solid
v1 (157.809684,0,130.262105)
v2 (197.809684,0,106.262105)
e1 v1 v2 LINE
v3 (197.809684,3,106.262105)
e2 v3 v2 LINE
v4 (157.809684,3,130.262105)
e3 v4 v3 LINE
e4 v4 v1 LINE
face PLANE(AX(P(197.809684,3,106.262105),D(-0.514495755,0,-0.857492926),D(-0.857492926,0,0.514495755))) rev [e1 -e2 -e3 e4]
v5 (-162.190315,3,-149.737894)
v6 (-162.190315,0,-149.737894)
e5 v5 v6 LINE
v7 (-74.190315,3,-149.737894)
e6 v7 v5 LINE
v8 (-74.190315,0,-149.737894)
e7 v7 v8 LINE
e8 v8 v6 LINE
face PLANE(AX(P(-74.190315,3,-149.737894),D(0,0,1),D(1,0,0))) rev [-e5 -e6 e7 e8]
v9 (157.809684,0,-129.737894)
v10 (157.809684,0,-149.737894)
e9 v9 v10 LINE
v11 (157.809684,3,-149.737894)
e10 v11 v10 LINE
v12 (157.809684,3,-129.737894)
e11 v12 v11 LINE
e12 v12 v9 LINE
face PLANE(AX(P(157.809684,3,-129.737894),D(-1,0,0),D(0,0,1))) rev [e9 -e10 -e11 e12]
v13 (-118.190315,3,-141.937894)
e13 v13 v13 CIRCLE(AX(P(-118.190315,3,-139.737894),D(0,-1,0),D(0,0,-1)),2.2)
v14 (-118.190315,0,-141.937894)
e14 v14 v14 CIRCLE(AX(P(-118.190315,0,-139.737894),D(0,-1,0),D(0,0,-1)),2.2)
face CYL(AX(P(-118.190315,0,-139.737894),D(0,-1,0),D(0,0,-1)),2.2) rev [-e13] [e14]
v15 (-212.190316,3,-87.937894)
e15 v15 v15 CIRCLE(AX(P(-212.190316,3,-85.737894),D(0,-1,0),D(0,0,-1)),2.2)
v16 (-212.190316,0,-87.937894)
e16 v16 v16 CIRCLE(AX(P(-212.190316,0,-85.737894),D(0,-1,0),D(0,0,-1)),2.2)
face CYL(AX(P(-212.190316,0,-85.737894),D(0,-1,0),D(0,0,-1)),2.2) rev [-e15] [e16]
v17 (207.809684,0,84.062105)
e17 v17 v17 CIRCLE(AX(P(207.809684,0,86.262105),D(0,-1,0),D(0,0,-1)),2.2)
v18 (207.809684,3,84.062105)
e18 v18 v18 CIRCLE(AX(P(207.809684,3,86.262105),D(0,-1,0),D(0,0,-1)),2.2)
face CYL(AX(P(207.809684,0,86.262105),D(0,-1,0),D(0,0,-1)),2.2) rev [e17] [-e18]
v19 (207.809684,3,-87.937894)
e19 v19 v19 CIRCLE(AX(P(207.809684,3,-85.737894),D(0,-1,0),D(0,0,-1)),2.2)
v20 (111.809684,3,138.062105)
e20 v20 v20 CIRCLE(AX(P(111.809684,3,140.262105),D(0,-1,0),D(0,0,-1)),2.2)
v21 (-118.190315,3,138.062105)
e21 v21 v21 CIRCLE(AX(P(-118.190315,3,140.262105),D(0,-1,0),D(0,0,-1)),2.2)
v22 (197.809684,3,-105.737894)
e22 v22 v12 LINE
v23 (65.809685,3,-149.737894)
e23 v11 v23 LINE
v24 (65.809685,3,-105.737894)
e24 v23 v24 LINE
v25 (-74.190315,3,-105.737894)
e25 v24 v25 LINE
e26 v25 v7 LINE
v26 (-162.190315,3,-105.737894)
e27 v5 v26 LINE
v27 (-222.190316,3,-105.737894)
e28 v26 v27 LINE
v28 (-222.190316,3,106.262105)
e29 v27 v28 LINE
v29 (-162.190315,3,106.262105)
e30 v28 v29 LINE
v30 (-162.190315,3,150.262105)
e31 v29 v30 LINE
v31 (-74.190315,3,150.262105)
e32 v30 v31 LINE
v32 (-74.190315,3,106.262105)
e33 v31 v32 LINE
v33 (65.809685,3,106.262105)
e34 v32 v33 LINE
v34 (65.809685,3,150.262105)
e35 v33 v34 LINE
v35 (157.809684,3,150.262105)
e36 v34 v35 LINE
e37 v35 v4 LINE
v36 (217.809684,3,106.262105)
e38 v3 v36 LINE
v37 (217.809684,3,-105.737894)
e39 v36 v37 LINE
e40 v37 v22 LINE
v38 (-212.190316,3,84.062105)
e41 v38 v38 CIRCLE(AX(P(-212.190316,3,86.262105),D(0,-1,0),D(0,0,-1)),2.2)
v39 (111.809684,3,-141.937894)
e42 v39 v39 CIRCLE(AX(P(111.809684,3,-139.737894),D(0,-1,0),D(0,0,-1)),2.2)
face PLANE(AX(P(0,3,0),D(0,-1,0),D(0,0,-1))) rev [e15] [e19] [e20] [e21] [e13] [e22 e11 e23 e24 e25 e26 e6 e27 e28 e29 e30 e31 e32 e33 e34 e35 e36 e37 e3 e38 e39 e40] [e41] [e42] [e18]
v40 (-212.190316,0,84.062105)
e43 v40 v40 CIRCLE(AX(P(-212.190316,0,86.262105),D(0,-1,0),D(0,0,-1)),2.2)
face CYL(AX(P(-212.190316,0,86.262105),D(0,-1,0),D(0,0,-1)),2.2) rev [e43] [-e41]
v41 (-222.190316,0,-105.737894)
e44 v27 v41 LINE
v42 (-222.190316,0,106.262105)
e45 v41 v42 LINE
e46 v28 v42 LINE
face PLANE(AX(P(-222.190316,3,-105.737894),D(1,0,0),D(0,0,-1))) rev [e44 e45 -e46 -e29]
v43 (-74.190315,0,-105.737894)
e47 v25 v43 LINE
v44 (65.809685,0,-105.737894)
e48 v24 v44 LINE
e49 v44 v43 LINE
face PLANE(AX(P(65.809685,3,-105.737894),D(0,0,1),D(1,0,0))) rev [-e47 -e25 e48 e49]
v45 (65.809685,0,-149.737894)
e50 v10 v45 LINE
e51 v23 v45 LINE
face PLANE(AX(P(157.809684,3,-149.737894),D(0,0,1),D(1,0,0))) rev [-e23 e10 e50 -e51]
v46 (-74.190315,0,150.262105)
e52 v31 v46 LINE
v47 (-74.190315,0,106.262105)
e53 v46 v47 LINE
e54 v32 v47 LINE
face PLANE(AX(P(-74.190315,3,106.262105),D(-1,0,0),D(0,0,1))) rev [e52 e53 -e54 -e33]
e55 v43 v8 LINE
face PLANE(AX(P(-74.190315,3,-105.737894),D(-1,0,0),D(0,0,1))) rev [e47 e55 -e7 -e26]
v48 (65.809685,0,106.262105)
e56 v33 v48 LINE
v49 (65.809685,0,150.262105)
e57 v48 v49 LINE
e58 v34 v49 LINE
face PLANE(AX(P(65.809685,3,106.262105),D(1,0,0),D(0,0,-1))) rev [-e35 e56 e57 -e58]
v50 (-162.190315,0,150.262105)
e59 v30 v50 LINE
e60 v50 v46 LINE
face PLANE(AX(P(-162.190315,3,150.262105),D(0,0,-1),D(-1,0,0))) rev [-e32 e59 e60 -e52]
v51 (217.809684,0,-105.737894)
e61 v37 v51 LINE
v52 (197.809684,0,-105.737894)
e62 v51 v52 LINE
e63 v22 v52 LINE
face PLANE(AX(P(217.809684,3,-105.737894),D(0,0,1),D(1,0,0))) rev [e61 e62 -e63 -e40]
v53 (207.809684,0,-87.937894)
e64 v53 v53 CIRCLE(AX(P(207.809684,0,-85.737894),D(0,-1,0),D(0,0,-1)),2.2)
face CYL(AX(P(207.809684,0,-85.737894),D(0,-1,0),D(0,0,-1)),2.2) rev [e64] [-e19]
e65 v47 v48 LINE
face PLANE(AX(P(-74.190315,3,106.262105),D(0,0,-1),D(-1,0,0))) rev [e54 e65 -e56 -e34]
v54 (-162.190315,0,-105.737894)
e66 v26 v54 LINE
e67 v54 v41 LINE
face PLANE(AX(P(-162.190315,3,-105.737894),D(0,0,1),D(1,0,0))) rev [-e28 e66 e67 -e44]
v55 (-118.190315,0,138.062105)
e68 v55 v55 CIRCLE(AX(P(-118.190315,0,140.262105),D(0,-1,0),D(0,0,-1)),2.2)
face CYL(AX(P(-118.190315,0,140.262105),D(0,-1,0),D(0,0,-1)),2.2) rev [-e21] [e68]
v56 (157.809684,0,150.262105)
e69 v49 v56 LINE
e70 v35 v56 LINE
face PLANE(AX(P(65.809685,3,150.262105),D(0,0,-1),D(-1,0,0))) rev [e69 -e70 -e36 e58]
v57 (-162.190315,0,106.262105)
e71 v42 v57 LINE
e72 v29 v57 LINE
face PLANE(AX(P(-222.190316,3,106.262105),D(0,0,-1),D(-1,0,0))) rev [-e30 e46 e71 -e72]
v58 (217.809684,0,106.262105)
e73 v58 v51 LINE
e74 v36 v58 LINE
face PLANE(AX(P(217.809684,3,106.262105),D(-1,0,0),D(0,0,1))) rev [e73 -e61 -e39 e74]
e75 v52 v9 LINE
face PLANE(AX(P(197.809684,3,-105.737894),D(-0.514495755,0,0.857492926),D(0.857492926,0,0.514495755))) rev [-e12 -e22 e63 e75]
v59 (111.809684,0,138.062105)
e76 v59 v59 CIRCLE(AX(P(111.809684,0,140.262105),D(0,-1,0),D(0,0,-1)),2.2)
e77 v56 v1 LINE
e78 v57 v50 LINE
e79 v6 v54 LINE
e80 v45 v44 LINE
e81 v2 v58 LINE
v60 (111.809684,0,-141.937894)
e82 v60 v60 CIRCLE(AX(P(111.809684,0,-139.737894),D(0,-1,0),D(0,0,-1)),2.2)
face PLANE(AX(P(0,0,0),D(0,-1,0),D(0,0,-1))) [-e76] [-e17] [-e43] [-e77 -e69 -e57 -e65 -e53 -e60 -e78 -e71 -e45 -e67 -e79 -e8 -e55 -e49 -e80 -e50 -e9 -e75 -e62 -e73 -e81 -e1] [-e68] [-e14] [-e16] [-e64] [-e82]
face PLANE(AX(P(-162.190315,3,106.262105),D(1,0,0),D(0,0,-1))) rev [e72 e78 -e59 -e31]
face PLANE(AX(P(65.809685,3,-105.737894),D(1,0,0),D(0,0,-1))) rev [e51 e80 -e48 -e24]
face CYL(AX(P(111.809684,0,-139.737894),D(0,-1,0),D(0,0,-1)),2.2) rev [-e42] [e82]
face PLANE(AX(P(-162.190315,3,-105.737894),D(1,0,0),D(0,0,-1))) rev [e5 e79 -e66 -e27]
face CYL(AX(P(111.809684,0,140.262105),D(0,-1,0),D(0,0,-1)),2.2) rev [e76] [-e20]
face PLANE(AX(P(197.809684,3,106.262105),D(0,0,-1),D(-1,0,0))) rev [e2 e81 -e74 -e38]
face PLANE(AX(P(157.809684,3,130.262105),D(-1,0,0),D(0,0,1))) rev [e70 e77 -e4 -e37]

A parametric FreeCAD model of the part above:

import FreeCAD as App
import Part
import Sketcher
Q = App.Units.Quantity


def add_polygon(sketch, points):
    """Adds a closed chain of lines whose ends are joined by coincident constraints."""
    first, n = sketch.GeometryCount, len(points)
    for a, b in zip(points, points[1:] + points[:1]):
        sketch.addGeometry(Part.LineSegment(App.Vector(*a, 0), App.Vector(*b, 0)), False)
    for i in range(n):
        sketch.addConstraint(Sketcher.Constraint("Coincident", first + i, 2, first + (i + 1) % n, 1))

doc = App.newDocument("Part")
body = doc.addObject("PartDesign::Body", "Body")

# Sketch on XZ plane
sketch1 = body.newObject("Sketcher::SketchObject", "Sketch")
sketch1.AttachmentSupport = (doc.getObject("XZ_Plane"), [""])
sketch1.MapMode = "FlatFace"
add_polygon(sketch1, [(197.809684, -105.737894), (157.809684, -129.737894), (157.809684, -149.737894), (65.809685, -149.737894), (65.809685, -105.737894), (-74.190315, -105.737894), (-74.190315, -149.737894), (-162.190315, -149.737894), (-162.190315, -105.737894), (-222.190315, -105.737894), (-222.190315, 106.262105), (-162.190315, 106.262105), (-162.190315, 150.262105), (-74.190315, 150.262105), (-74.190315, 106.262105), (65.809685, 106.262105), (65.809685, 150.262105), (157.809684, 150.262105), (157.809684, 130.262105), (197.809684, 106.262105), (217.809684, 106.262105), (217.809684, -105.737894)])  # lines 0-21
sketch1.addConstraint([
    Sketcher.Constraint("Vertical", 1),
    Sketcher.Constraint("Horizontal", 2),
    Sketcher.Constraint("Vertical", 3),
    Sketcher.Constraint("Horizontal", 4),
    Sketcher.Constraint("Vertical", 5),
    Sketcher.Constraint("Horizontal", 6),
    Sketcher.Constraint("Vertical", 7),
    Sketcher.Constraint("Horizontal", 8),
    Sketcher.Constraint("Vertical", 9),
    Sketcher.Constraint("Horizontal", 10),
    Sketcher.Constraint("Vertical", 11),
    Sketcher.Constraint("Horizontal", 12),
    Sketcher.Constraint("Vertical", 13),
    Sketcher.Constraint("Horizontal", 14),
    Sketcher.Constraint("Vertical", 15),
    Sketcher.Constraint("Horizontal", 16),
    Sketcher.Constraint("Vertical", 17),
    Sketcher.Constraint("Horizontal", 19),
    Sketcher.Constraint("Vertical", 20),
    Sketcher.Constraint("Horizontal", 21),
    Sketcher.Constraint("Horizontal", 2, 2, 5, 2),
    Sketcher.Constraint("Horizontal", 4, 2, 7, 2),
    Sketcher.Constraint("Horizontal", 10, 2, 13, 2),
    Sketcher.Constraint("Horizontal", 12, 2, 15, 2),
    Sketcher.Constraint("Horizontal", 14, 2, 18, 2),
    Sketcher.Constraint("Horizontal", 8, 2, 20, 2),
    Sketcher.Constraint("Vertical", 7, 2, 10, 2),
    Sketcher.Constraint("Vertical", 5, 2, 12, 2),
    Sketcher.Constraint("Vertical", 3, 2, 14, 2),
    Sketcher.Constraint("Vertical", 1, 2, 16, 2),
    Sketcher.Constraint("Vertical", 18, 2, 21, 2),
    Sketcher.Constraint("Equal", 21, 1),
    Sketcher.Constraint("Equal", 7, 11),
    Sketcher.Constraint("Equal", 1, 17),
    Sketcher.Constraint("DistanceX", 2, 2, 2, 1, Q("91.999999 mm")),
    Sketcher.Constraint("DistanceX", 4, 2, 4, 1, Q("140 mm")),
    Sketcher.Constraint("DistanceX", 6, 2, 6, 1, Q("88 mm")),
    Sketcher.Constraint("DistanceX", 8, 2, 8, 1, Q("60 mm")),
    Sketcher.Constraint("DistanceX", 19, 1, 19, 2, Q("20 mm")),
    Sketcher.Constraint("DistanceY", 3, 1, 3, 2, Q("44 mm")),
    Sketcher.Constraint("DistanceY", 9, 1, 9, 2, Q("211.999999 mm")),
    Sketcher.Constraint("DistanceX", 17, 2, 18, 2, Q("40 mm")),
    Sketcher.Constraint("DistanceX", -1, 1, 0, 2, Q("157.809684 mm")),
    Sketcher.Constraint("DistanceY", 0, 2, -1, 1, Q("129.737894 mm")),
])
pad1 = body.newObject("PartDesign::Pad", "Pad")
pad1.Profile = sketch1
pad1.Length = 3
pad1.Reversed = True

# Sketch on XZ plane
sketch2 = body.newObject("Sketcher::SketchObject", "Sketch001")
sketch2.AttachmentSupport = (doc.getObject("XZ_Plane"), [""])
sketch2.MapMode = "FlatFace"
sketch2.addGeometry([
    Part.Circle(App.Vector(207.809684, -85.737894, 0), App.Vector(0, 0, 1), 2.2),  # 0
    Part.Circle(App.Vector(207.809684, 86.262105, 0), App.Vector(0, 0, 1), 2.2),  # 1
    Part.Circle(App.Vector(111.809684, 140.262105, 0), App.Vector(0, 0, 1), 2.2),  # 2
    Part.Circle(App.Vector(-118.190315, 140.262105, 0), App.Vector(0, 0, 1), 2.2),  # 3
    Part.Circle(App.Vector(111.809684, -139.737894, 0), App.Vector(0, 0, 1), 2.2),  # 4
    Part.Circle(App.Vector(-118.190315, -139.737894, 0), App.Vector(0, 0, 1), 2.2),  # 5
    Part.Circle(App.Vector(-212.190315, -85.737894, 0), App.Vector(0, 0, 1), 2.2),  # 6
    Part.Circle(App.Vector(-212.190315, 86.262105, 0), App.Vector(0, 0, 1), 2.2),  # 7
], False)
sketch2.addConstraint([
    Sketcher.Constraint("Equal", 0, 1),
    Sketcher.Constraint("Equal", 1, 2),
    Sketcher.Constraint("Equal", 2, 3),
    Sketcher.Constraint("Equal", 3, 4),
    Sketcher.Constraint("Equal", 4, 5),
    Sketcher.Constraint("Equal", 5, 6),
    Sketcher.Constraint("Equal", 6, 7),
    Sketcher.Constraint("Horizontal", 2, 3, 3, 3),
    Sketcher.Constraint("Horizontal", 4, 3, 5, 3),
    Sketcher.Constraint("Horizontal", 0, 3, 6, 3),
    Sketcher.Constraint("Horizontal", 1, 3, 7, 3),
    Sketcher.Constraint("Vertical", 0, 3, 1, 3),
    Sketcher.Constraint("Vertical", 2, 3, 4, 3),
    Sketcher.Constraint("Vertical", 3, 3, 5, 3),
    Sketcher.Constraint("Vertical", 6, 3, 7, 3),
    Sketcher.Constraint("Diameter", 0, Q("4.4 mm")),
    Sketcher.Constraint("DistanceY", 0, 3, 1, 3, Q("171.999999 mm")),
    Sketcher.Constraint("DistanceX", 2, 3, 1, 3, Q("96 mm")),
    Sketcher.Constraint("DistanceY", 1, 3, 2, 3, Q("54 mm")),
    Sketcher.Constraint("DistanceX", 3, 3, 2, 3, Q("230 mm")),
    Sketcher.Constraint("DistanceY", 4, 3, 0, 3, Q("54 mm")),
    Sketcher.Constraint("DistanceX", 6, 3, 5, 3, Q("94 mm")),
    Sketcher.Constraint("DistanceX", -1, 1, 0, 3, Q("207.809684 mm")),
    Sketcher.Constraint("DistanceY", 0, 3, -1, 1, Q("85.737894 mm")),
])
doc.recompute()
hole = body.newObject("PartDesign::Hole", "Hole")
hole.Profile = sketch2
hole.ThreadType = "None"
hole.Diameter = 4.4
hole.DepthType = "Dimension"
hole.Depth = 5
hole.DrillPoint = "Flat"

doc.recompute()
